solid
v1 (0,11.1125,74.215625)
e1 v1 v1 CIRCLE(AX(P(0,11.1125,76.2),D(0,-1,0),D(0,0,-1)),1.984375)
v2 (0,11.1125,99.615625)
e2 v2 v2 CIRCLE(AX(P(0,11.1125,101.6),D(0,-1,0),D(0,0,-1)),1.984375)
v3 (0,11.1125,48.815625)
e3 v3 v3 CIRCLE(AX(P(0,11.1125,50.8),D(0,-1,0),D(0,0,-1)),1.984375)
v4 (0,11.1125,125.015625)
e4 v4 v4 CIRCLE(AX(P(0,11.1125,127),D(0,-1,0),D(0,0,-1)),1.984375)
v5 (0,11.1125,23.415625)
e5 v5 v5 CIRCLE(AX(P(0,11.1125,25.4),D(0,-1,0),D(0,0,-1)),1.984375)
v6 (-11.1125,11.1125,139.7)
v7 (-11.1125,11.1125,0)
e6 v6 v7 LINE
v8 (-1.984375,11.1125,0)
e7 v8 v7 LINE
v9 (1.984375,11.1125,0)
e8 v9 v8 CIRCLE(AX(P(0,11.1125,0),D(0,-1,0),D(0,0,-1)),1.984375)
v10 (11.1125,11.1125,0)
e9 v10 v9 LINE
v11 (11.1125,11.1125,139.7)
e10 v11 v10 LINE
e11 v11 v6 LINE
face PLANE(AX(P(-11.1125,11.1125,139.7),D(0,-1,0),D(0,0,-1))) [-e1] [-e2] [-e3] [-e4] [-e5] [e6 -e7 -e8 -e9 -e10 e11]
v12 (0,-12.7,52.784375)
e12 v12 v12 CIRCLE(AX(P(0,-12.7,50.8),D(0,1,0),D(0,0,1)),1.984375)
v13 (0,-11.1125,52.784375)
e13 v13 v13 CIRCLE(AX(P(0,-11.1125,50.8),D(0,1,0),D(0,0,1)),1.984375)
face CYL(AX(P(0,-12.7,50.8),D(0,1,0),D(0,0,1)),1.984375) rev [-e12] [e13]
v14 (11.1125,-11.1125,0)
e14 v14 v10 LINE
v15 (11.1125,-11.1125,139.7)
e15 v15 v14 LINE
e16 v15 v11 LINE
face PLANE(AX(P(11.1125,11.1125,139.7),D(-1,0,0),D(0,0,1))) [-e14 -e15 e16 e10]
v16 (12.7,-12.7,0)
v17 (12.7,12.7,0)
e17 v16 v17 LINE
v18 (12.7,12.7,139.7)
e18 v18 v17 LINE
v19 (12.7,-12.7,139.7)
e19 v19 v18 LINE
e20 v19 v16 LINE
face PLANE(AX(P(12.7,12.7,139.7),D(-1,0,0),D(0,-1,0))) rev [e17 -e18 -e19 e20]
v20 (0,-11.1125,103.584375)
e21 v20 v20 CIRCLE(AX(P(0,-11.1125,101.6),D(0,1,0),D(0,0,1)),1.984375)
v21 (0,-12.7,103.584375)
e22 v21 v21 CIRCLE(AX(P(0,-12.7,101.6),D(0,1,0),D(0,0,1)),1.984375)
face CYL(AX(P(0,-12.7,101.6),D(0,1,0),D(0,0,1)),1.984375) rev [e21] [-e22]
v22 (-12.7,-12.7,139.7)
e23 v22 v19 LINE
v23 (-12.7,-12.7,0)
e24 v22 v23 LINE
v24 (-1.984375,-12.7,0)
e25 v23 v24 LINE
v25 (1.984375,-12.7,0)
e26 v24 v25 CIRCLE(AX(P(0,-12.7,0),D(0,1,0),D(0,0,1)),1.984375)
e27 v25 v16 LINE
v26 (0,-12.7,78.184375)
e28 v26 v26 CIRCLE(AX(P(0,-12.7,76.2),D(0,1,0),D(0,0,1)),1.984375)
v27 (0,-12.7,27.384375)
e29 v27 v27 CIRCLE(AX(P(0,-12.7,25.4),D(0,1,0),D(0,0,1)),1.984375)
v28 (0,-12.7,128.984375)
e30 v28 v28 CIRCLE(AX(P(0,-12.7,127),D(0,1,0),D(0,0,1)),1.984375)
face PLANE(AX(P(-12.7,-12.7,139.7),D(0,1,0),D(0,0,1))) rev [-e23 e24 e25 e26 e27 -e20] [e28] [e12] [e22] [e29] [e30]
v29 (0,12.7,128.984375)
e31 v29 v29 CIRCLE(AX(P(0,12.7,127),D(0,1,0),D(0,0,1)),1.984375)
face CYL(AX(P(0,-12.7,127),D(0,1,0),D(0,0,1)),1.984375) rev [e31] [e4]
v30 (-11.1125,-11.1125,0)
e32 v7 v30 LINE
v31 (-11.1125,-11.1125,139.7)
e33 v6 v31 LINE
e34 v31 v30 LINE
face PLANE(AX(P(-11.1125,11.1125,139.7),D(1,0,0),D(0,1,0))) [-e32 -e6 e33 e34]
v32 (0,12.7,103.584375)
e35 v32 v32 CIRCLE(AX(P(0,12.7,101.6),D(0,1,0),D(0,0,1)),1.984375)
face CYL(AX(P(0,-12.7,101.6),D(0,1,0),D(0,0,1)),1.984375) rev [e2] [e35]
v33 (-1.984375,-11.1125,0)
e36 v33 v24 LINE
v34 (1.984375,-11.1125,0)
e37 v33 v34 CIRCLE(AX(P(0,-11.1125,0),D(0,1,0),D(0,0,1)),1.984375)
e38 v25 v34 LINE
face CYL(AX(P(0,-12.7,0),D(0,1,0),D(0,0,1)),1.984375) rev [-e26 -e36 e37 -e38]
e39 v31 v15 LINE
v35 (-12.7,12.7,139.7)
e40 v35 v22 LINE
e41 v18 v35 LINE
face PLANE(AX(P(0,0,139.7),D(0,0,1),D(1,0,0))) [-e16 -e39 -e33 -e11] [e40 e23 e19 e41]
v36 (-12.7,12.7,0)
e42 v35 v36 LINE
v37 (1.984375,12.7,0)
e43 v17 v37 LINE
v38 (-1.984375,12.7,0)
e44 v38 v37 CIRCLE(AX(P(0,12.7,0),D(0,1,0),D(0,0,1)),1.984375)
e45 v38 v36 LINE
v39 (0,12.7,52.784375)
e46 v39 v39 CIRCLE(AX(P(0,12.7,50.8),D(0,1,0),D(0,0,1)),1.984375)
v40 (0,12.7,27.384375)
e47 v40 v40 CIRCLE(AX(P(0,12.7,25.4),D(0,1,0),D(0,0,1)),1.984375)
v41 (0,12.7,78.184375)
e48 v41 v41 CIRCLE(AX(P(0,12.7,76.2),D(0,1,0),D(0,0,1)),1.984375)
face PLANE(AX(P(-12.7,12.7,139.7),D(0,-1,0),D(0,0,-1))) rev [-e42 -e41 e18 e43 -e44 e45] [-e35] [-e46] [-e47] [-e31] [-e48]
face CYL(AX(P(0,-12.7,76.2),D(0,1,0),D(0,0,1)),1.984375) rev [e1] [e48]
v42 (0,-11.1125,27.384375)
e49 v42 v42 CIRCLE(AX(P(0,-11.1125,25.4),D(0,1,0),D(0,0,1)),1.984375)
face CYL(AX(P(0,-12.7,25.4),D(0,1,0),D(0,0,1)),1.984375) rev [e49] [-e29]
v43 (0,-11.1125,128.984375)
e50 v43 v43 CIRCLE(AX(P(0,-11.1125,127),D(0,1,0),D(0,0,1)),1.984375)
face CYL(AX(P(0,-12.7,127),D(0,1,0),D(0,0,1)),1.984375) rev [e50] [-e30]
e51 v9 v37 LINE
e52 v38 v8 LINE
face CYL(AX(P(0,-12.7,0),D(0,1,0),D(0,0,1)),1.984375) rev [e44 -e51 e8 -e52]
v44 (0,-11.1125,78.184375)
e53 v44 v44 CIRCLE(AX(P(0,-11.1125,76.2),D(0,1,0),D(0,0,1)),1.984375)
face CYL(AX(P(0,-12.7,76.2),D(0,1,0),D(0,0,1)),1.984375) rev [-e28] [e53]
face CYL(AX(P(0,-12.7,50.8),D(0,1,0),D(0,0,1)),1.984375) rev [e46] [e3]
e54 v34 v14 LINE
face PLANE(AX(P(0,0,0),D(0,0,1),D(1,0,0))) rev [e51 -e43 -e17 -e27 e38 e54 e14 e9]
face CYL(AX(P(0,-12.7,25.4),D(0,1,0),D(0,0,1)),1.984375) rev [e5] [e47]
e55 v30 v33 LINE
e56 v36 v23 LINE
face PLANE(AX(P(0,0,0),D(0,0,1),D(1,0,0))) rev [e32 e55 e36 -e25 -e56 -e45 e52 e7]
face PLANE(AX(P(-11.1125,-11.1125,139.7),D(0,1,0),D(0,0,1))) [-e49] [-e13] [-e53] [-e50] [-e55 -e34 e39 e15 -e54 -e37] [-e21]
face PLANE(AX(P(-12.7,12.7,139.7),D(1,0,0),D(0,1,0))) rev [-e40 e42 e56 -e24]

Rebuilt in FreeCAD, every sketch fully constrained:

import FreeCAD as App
import Part
import Sketcher
Q = App.Units.Quantity

doc = App.newDocument("Part")
body = doc.addObject("PartDesign::Body", "Body")

# Sketch on XY plane
sketch1 = doc.addObject("Sketcher::SketchObject", "Sketch")
body.addObject(sketch1)
sketch1.AttachmentSupport = (doc.XY_Plane, [""])
sketch1.MapMode = "FlatFace"
sketch1.addGeometry([
    Part.LineSegment(App.Vector(-13, 13, 0), App.Vector(-13, -13, 0)),  # 0
    Part.LineSegment(App.Vector(-13, -13, 0), App.Vector(13, -13, 0)),  # 1
    Part.LineSegment(App.Vector(13, -13, 0), App.Vector(13, 13, 0)),  # 2
    Part.LineSegment(App.Vector(13, 13, 0), App.Vector(-13, 13, 0)),  # 3
    Part.LineSegment(App.Vector(11, -11, 0), App.Vector(-11, -11, 0)),  # 4
    Part.LineSegment(App.Vector(-11, -11, 0), App.Vector(-11, 11, 0)),  # 5
    Part.LineSegment(App.Vector(-11, 11, 0), App.Vector(11, 11, 0)),  # 6
    Part.LineSegment(App.Vector(11, 11, 0), App.Vector(11, -11, 0)),  # 7
], False)
sketch1.addConstraint([
    Sketcher.Constraint("Coincident", 0, 2, 1, 1),
    Sketcher.Constraint("Coincident", 1, 2, 2, 1),
    Sketcher.Constraint("Coincident", 2, 2, 3, 1),
    Sketcher.Constraint("Coincident", 3, 2, 0, 1),
    Sketcher.Constraint("Coincident", 4, 2, 5, 1),
    Sketcher.Constraint("Coincident", 5, 2, 6, 1),
    Sketcher.Constraint("Coincident", 6, 2, 7, 1),
    Sketcher.Constraint("Coincident", 7, 2, 4, 1),
    Sketcher.Constraint("Vertical", 0),
    Sketcher.Constraint("Horizontal", 1),
    Sketcher.Constraint("Vertical", 2),
    Sketcher.Constraint("Horizontal", 3),
    Sketcher.Constraint("Horizontal", 4),
    Sketcher.Constraint("Vertical", 5),
    Sketcher.Constraint("Horizontal", 6),
    Sketcher.Constraint("Vertical", 7),
    Sketcher.Constraint("Symmetric", 0, 2, 2, 2, -1, 1),
    Sketcher.Constraint("Symmetric", 4, 2, 6, 2, -1, 1),
    Sketcher.Constraint("Equal", 3, 0),
    Sketcher.Constraint("Equal", 6, 5),
    Sketcher.Constraint("DistanceX", 1, 1, 1, 2, Q("1 in")),
    Sketcher.Constraint("DistanceX", 4, 2, 4, 1, Q("0.875 in")),
])
pad1 = doc.addObject("PartDesign::Pad", "Pad")
body.addObject(pad1)
pad1.Profile = sketch1
pad1.Length = Q("5.5 in")

# Sketch on XZ plane
sketch2 = doc.addObject("Sketcher::SketchObject", "Sketch001")
body.addObject(sketch2)
sketch2.AttachmentSupport = (doc.XZ_Plane, [""])
sketch2.MapMode = "FlatFace"
sketch2.AttachmentOffset = App.Placement(App.Vector(0, 0, -0.5 * 25.4), App.Rotation())
sketch2.addGeometry([
    Part.Circle(App.Vector(0, 127, 0), App.Vector(0, 0, 1), 2),  # 0
    Part.Circle(App.Vector(0, 101.6, 0), App.Vector(0, 0, 1), 2),  # 1
    Part.Circle(App.Vector(0, 76.2, 0), App.Vector(0, 0, 1), 2),  # 2
    Part.Circle(App.Vector(0, 50.8, 0), App.Vector(0, 0, 1), 2),  # 3
    Part.Circle(App.Vector(0, 25.4, 0), App.Vector(0, 0, 1), 2),  # 4
    Part.Circle(App.Vector(0, 0, 0), App.Vector(0, 0, 1), 2),  # 5
    Part.Circle(App.Vector(0, -25.4, 0), App.Vector(0, 0, 1), 2),  # 6
    Part.Circle(App.Vector(0, -50.8, 0), App.Vector(0, 0, 1), 2),  # 7
    Part.Circle(App.Vector(0, -76.2, 0), App.Vector(0, 0, 1), 2),  # 8
    Part.Circle(App.Vector(0, -101.6, 0), App.Vector(0, 0, 1), 2),  # 9
    Part.Circle(App.Vector(0, -127, 0), App.Vector(0, 0, 1), 2),  # 10
    Part.Circle(App.Vector(0, -152.4, 0), App.Vector(0, 0, 1), 2),  # 11
], False)
sketch2.addConstraint([
    Sketcher.Constraint("Coincident", 5, 3, -1, 1),
    Sketcher.Constraint("Equal", 0, 1),
    Sketcher.Constraint("Equal", 1, 2),
    Sketcher.Constraint("Equal", 2, 3),
    Sketcher.Constraint("Equal", 3, 4),
    Sketcher.Constraint("Equal", 4, 5),
    Sketcher.Constraint("Equal", 5, 6),
    Sketcher.Constraint("Equal", 6, 7),
    Sketcher.Constraint("Equal", 7, 8),
    Sketcher.Constraint("Equal", 8, 9),
    Sketcher.Constraint("Equal", 9, 10),
    Sketcher.Constraint("Equal", 10, 11),
    Sketcher.Constraint("Symmetric", 4, 3, 6, 3, -1, 1),
    Sketcher.Constraint("Symmetric", 3, 3, 7, 3, -1, 1),
    Sketcher.Constraint("Symmetric", 2, 3, 8, 3, -1, 1),
    Sketcher.Constraint("Symmetric", 1, 3, 9, 3, -1, 1),
    Sketcher.Constraint("Symmetric", 0, 3, 10, 3, -1, 1),
    Sketcher.Constraint("PointOnObject", 0, 3, -2),
    Sketcher.Constraint("PointOnObject", 1, 3, -2),
    Sketcher.Constraint("PointOnObject", 2, 3, -2),
    Sketcher.Constraint("PointOnObject", 3, 3, -2),
    Sketcher.Constraint("PointOnObject", 4, 3, -2),
    Sketcher.Constraint("PointOnObject", 11, 3, -2),
    Sketcher.Constraint("Diameter", 0, Q("0.15625 in")),
    Sketcher.Constraint("DistanceY", -1, 1, 0, 3, Q("5 in")),
    Sketcher.Constraint("DistanceY", -1, 1, 1, 3, Q("4 in")),
    Sketcher.Constraint("DistanceY", -1, 1, 2, 3, Q("3 in")),
    Sketcher.Constraint("DistanceY", -1, 1, 3, 3, Q("2 in")),
    Sketcher.Constraint("DistanceY", -1, 1, 4, 3, Q("1 in")),
    Sketcher.Constraint("DistanceY", 11, 3, -1, 1, Q("6 in")),
])
pocket1 = doc.addObject("PartDesign::Pocket", "Pocket")
body.addObject(pocket1)
pocket1.Profile = sketch2
pocket1.Type = "ThroughAll"
pocket1.Reversed = True

doc.recompute()
